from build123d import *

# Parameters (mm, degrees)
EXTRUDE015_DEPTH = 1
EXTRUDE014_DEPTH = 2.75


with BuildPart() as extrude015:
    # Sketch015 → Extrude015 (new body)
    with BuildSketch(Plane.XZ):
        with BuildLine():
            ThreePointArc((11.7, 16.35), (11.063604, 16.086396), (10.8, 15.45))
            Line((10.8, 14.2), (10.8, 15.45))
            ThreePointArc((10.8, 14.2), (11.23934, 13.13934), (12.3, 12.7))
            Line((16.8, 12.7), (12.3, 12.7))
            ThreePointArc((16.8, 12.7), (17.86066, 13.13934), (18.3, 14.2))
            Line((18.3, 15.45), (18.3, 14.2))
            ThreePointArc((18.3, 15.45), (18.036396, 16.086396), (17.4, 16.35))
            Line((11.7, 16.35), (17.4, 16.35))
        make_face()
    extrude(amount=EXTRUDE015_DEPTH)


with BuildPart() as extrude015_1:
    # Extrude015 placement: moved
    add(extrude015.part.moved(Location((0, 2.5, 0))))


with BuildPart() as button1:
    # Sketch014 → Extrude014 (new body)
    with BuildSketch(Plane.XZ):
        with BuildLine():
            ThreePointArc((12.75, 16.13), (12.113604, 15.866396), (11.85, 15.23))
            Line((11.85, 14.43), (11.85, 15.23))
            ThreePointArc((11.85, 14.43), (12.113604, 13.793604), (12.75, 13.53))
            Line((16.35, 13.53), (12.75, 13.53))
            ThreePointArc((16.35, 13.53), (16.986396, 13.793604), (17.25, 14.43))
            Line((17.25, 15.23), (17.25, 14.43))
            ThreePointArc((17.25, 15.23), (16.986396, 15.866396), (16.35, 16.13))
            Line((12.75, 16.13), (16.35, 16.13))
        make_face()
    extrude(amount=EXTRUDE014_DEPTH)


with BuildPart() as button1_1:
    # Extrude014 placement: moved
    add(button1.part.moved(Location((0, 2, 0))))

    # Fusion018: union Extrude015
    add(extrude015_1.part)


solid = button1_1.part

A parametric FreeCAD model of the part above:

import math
import FreeCAD as App
import Part
import Sketcher
from FreeCAD import Vector

doc = App.newDocument("Part")
body = doc.addObject("PartDesign::Body", "Body")

# Sketch on XZ plane
sketch1 = body.newObject("Sketcher::SketchObject", "Sketch")
sketch1.AttachmentSupport = (doc.getObject("XZ_Plane"), [""])
sketch1.MapMode = "FlatFace"
sketch1.addGeometry([
    Part.ArcOfCircle(Part.Circle(Vector(11.7, 15.4, 0), Vector(0, 0, 1), 0.9), math.radians(90), math.radians(180)),  # 0
    Part.LineSegment(Vector(10.8, 15.4, 0), Vector(10.8, 14.2, 0)),  # 1
    Part.ArcOfCircle(Part.Circle(Vector(12.3, 14.2, 0), Vector(0, 0, 1), 1.5), math.radians(-180), math.radians(-90)),  # 2
    Part.LineSegment(Vector(12.3, 12.7, 0), Vector(16.8, 12.7, 0)),  # 3
    Part.ArcOfCircle(Part.Circle(Vector(16.8, 14.2, 0), Vector(0, 0, 1), 1.5), math.radians(-90), math.radians(0)),  # 4
    Part.LineSegment(Vector(18.3, 14.2, 0), Vector(18.3, 15.4, 0)),  # 5
    Part.ArcOfCircle(Part.Circle(Vector(17.4, 15.4, 0), Vector(0, 0, 1), 0.9), math.radians(0), math.radians(90)),  # 6
    Part.LineSegment(Vector(17.4, 16.4, 0), Vector(11.7, 16.4, 0)),  # 7
], False)
sketch1.addConstraint([
    Sketcher.Constraint("Tangent", 0, 2, 1, 1),
    Sketcher.Constraint("Tangent", 1, 2, 2, 1),
    Sketcher.Constraint("Tangent", 2, 2, 3, 1),
    Sketcher.Constraint("Tangent", 3, 2, 4, 1),
    Sketcher.Constraint("Tangent", 4, 2, 5, 1),
    Sketcher.Constraint("Tangent", 5, 2, 6, 1),
    Sketcher.Constraint("Tangent", 6, 2, 7, 1),
    Sketcher.Constraint("Tangent", 7, 2, 0, 1),
    Sketcher.Constraint("Vertical", 1),
    Sketcher.Constraint("Horizontal", 3),
    Sketcher.Constraint("Vertical", 5),
    Sketcher.Constraint("Horizontal", 7),
    Sketcher.Constraint("Equal", 2, 4),
    Sketcher.Constraint("Equal", 0, 6),
    Sketcher.Constraint("Radius", 0, 0.9),
    Sketcher.Constraint("Radius", 2, 1.500001),
    Sketcher.Constraint("DistanceX", 3, 1, 3, 2, 4.5),
    Sketcher.Constraint("DistanceY", 1, 2, 1, 1, 1.25),
    Sketcher.Constraint("DistanceX", -1, 1, 0, 3, 11.7),
    Sketcher.Constraint("DistanceY", -1, 1, 2, 3, 14.200001),
])
pad1 = body.newObject("PartDesign::Pad", "Pad")
pad1.Profile = sketch1
pad1.Length = 1
body2 = doc.addObject("PartDesign::Body", "Body001")
doc.recompute()

body.Placement = App.Placement(Vector(0, 2.5, 0), App.Rotation(Vector(0, 0, 1), 0))
boolean = body2.newObject("PartDesign::Boolean", "Boolean")
boolean.Type = "Fuse"
boolean.addObjects([body])
body3 = doc.addObject("PartDesign::Body", "Body002")

# Sketch on XZ plane
sketch2 = body3.newObject("Sketcher::SketchObject", "Sketch001")
sketch2.AttachmentSupport = (doc.getObject("XZ_Plane002"), [""])
sketch2.MapMode = "FlatFace"
sketch2.addGeometry([
    Part.ArcOfCircle(Part.Circle(Vector(12.8, 15.2, 0), Vector(0, 0, 1), 0.9), math.radians(90), math.radians(180)),  # 0
    Part.LineSegment(Vector(11.8, 15.2, 0), Vector(11.8, 14.4, 0)),  # 1
    Part.ArcOfCircle(Part.Circle(Vector(12.8, 14.4, 0), Vector(0, 0, 1), 0.9), math.radians(-180), math.radians(-90)),  # 2
    Part.LineSegment(Vector(12.8, 13.5, 0), Vector(16.4, 13.5, 0)),  # 3
    Part.ArcOfCircle(Part.Circle(Vector(16.3, 14.4, 0), Vector(0, 0, 1), 0.9), math.radians(-90), math.radians(0)),  # 4
    Part.LineSegment(Vector(17.2, 14.4, 0), Vector(17.2, 15.2, 0)),  # 5
    Part.ArcOfCircle(Part.Circle(Vector(16.3, 15.2, 0), Vector(0, 0, 1), 0.9), math.radians(0), math.radians(90)),  # 6
    Part.LineSegment(Vector(16.4, 16.1, 0), Vector(12.8, 16.1, 0)),  # 7
], False)
sketch2.addConstraint([
    Sketcher.Constraint("Tangent", 0, 2, 1, 1),
    Sketcher.Constraint("Tangent", 1, 2, 2, 1),
    Sketcher.Constraint("Tangent", 2, 2, 3, 1),
    Sketcher.Constraint("Tangent", 3, 2, 4, 1),
    Sketcher.Constraint("Tangent", 4, 2, 5, 1),
    Sketcher.Constraint("Tangent", 5, 2, 6, 1),
    Sketcher.Constraint("Tangent", 6, 2, 7, 1),
    Sketcher.Constraint("Tangent", 7, 2, 0, 1),
    Sketcher.Constraint("Vertical", 1),
    Sketcher.Constraint("Horizontal", 3),
    Sketcher.Constraint("Vertical", 5),
    Sketcher.Constraint("Horizontal", 7),
    Sketcher.Constraint("Equal", 0, 2),
    Sketcher.Constraint("Equal", 2, 4),
    Sketcher.Constraint("Equal", 4, 6),
    Sketcher.Constraint("Radius", 0, 0.9),
    Sketcher.Constraint("DistanceX", 3, 1, 3, 2, 3.6),
    Sketcher.Constraint("DistanceY", 1, 2, 1, 1, 0.8),
    Sketcher.Constraint("DistanceX", -1, 1, 0, 3, 12.75),
    Sketcher.Constraint("DistanceY", -1, 1, 0, 3, 15.23),
])
pad2 = body3.newObject("PartDesign::Pad", "Pad001")
pad2.Profile = sketch2
pad2.Length = 2.75
body4 = doc.addObject("PartDesign::Body", "Body003")
doc.recompute()

body3.Placement = App.Placement(Vector(0, 2, 0), App.Rotation(Vector(0, 0, 1), 0))
boolean2 = body4.newObject("PartDesign::Boolean", "Boolean001")
boolean2.Type = "Fuse"
boolean2.addObjects([body3])
doc.recompute()

boolean3 = body4.newObject("PartDesign::Boolean", "Boolean002")
boolean3.Type = "Fuse"
boolean3.addObjects([body2])

doc.recompute()
